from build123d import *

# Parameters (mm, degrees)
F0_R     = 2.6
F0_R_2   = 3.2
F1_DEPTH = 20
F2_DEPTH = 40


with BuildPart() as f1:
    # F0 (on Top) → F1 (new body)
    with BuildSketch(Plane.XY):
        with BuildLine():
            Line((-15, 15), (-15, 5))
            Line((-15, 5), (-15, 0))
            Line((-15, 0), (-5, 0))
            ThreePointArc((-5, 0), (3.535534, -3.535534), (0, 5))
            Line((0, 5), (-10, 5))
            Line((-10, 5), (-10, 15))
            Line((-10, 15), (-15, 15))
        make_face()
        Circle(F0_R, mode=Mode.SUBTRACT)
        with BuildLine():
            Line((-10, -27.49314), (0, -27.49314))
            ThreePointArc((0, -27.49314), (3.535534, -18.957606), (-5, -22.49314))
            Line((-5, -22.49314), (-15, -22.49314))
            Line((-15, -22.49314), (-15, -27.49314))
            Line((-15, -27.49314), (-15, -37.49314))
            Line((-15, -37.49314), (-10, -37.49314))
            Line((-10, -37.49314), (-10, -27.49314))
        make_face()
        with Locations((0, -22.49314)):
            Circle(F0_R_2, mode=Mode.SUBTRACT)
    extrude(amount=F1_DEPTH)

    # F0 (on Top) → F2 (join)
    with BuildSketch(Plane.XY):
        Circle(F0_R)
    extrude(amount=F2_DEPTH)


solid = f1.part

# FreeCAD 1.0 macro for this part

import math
import FreeCAD as App
import Part
import Sketcher

V = App.Vector
Q = App.Units.Quantity

doc = App.newDocument("Part")
body = doc.addObject("PartDesign::Body", "Body")
body.AllowCompound = True

# Sketch on XY plane
sketch1 = body.newObject("Sketcher::SketchObject", "Sketch")
sketch1.AttachmentSupport = (doc.getObject("XY_Plane"), [""])
sketch1.MapMode = "FlatFace"
sketch1.addGeometry([
    Part.LineSegment(V(-15, 15, 0), V(-15, 0, 0)),  # 0
    Part.LineSegment(V(-15, 0, 0), V(-5, 0, 0)),  # 1
    Part.ArcOfCircle(Part.Circle(V(0, 0, 0), V(0, 0, 1), 5), math.radians(179.999999), math.radians(450.000001)),  # 2
    Part.LineSegment(V(0, 5, 0), V(-10, 5, 0)),  # 3
    Part.LineSegment(V(-10, 5, 0), V(-10, 15, 0)),  # 4
    Part.LineSegment(V(-10, 15, 0), V(-15, 15, 0)),  # 5
    Part.Circle(V(0, 0, 0), V(0, 0, 1), 2.6),  # 6
    Part.LineSegment(V(-10, -27.49314, 0), V(0, -27.49314, 0)),  # 7
    Part.ArcOfCircle(Part.Circle(V(0, -22.49314, 0), V(0, 0, 1), 5), math.radians(-90.000001), math.radians(180.000001)),  # 8
    Part.LineSegment(V(-5, -22.49314, 0), V(-15, -22.49314, 0)),  # 9
    Part.LineSegment(V(-15, -22.49314, 0), V(-15, -37.49314, 0)),  # 10
    Part.LineSegment(V(-15, -37.49314, 0), V(-10, -37.49314, 0)),  # 11
    Part.LineSegment(V(-10, -37.49314, 0), V(-10, -27.49314, 0)),  # 12
    Part.Circle(V(0, -22.49314, 0), V(0, 0, 1), 3.2),  # 13
], False)
sketch1.addConstraint([
    Sketcher.Constraint("Coincident", 0, 2, 1, 1),
    Sketcher.Constraint("Coincident", 1, 2, 2, 1),
    Sketcher.Constraint("Tangent", 2, 2, 3, 1),
    Sketcher.Constraint("Coincident", 3, 2, 4, 1),
    Sketcher.Constraint("Coincident", 4, 2, 5, 1),
    Sketcher.Constraint("Coincident", 5, 2, 0, 1),
    Sketcher.Constraint("Tangent", 7, 2, 8, 1),
    Sketcher.Constraint("Coincident", 8, 2, 9, 1),
    Sketcher.Constraint("Coincident", 9, 2, 10, 1),
    Sketcher.Constraint("Coincident", 10, 2, 11, 1),
    Sketcher.Constraint("Coincident", 11, 2, 12, 1),
    Sketcher.Constraint("Coincident", 12, 2, 7, 1),
    Sketcher.Constraint("Vertical", 0),
    Sketcher.Constraint("Horizontal", 1),
    Sketcher.Constraint("Horizontal", 3),
    Sketcher.Constraint("Vertical", 4),
    Sketcher.Constraint("Horizontal", 5),
    Sketcher.Constraint("Horizontal", 7),
    Sketcher.Constraint("Horizontal", 9),
    Sketcher.Constraint("Vertical", 10),
    Sketcher.Constraint("Horizontal", 11),
    Sketcher.Constraint("Vertical", 12),
    Sketcher.Constraint("Coincident", 2, 3, -1, 1),
    Sketcher.Constraint("Coincident", 6, 3, -1, 1),
    Sketcher.Constraint("Coincident", 13, 3, 8, 3),
    Sketcher.Constraint("Equal", 2, 8),
    Sketcher.Constraint("PointOnObject", 8, 3, -2),
    Sketcher.Constraint("PointOnObject", 0, 2, -1),
    Sketcher.Constraint("Horizontal", 13, 3, 8, 2),
    Sketcher.Constraint("Vertical", 5, 2, 9, 2),
    Sketcher.Constraint("Vertical", 4, 2, 11, 2),
    Sketcher.Constraint("Equal", 1, 3),
    Sketcher.Constraint("Equal", 9, 4),
    Sketcher.Constraint("Equal", 0, 10),
    Sketcher.Constraint("Radius", 2, Q("5 mm")),
    Sketcher.Constraint("Diameter", 6, Q("5.2 mm")),
    Sketcher.Constraint("Diameter", 13, Q("6.4 mm")),
    Sketcher.Constraint("DistanceX", 1, 1, 1, 2, Q("10 mm")),
    Sketcher.Constraint("DistanceY", 8, 3, -1, 1, Q("22.49314 mm")),
])
pad1 = body.newObject("PartDesign::Pad", "Pad")
pad1.Profile = sketch1
pad1.Length = 20

# Sketch on XY plane
sketch2 = body.newObject("Sketcher::SketchObject", "Sketch001")
sketch2.AttachmentSupport = (doc.getObject("XY_Plane"), [""])
sketch2.MapMode = "FlatFace"
sketch2.addGeometry(Part.Circle(V(0, 0, 0), V(0, 0, 1), 2.6), False)
sketch2.addConstraint([
    Sketcher.Constraint("Coincident", 0, 3, -1, 1),
    Sketcher.Constraint("Diameter", 0, Q("5.2 mm")),
])
pad2 = body.newObject("PartDesign::Pad", "Pad001")
pad2.Profile = sketch2
pad2.Length = 40

doc.recompute()
